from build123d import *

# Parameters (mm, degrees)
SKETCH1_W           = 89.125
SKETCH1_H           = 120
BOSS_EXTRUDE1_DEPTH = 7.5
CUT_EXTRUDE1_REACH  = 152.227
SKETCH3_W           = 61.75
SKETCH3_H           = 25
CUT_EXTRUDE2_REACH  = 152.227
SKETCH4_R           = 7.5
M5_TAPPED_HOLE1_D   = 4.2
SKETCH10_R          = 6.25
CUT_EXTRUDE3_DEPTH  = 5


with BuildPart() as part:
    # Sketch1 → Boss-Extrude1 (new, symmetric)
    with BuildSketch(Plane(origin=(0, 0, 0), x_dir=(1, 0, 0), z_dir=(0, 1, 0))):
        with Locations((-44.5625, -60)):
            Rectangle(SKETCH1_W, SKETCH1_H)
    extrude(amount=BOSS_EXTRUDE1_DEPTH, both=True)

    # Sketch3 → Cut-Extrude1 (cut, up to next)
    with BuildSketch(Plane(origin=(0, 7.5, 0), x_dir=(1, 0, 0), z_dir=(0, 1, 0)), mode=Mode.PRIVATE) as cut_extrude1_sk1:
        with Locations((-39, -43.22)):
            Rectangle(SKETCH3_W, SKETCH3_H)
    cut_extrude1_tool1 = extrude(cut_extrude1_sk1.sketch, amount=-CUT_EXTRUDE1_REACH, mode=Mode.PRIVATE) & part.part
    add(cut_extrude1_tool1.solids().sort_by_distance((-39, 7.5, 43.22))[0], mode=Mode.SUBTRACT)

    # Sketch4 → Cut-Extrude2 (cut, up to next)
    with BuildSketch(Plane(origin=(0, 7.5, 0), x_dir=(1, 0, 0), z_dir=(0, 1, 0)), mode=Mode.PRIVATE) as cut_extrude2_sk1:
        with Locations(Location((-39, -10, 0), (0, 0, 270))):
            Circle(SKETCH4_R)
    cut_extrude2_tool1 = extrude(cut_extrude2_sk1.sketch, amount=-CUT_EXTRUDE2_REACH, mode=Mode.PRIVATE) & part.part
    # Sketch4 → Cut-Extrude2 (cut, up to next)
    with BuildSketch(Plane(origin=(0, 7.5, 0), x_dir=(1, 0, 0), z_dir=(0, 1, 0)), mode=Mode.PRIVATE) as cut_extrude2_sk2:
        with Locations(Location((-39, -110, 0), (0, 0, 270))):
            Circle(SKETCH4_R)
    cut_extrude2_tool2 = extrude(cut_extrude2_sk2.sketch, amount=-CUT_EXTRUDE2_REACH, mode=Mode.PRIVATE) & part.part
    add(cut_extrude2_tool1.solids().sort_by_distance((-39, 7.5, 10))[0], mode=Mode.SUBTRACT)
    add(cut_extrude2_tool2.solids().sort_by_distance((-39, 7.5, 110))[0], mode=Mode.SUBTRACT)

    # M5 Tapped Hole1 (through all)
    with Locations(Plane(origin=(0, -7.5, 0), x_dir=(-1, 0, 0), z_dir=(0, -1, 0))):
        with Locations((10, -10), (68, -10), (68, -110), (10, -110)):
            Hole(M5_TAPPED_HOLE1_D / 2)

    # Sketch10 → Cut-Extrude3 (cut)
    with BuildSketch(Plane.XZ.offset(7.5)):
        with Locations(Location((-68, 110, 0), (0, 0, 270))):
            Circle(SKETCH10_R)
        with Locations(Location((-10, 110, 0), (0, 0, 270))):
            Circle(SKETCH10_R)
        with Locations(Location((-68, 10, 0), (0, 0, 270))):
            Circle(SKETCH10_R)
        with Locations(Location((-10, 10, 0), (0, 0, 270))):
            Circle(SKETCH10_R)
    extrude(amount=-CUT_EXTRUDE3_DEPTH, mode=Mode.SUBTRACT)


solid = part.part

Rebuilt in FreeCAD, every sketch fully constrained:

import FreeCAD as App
import Part
import Sketcher

V = App.Vector

doc = App.newDocument("Part")
body = doc.addObject("PartDesign::Body", "Body")

# Sketch on XZ plane
sketch1 = body.newObject("Sketcher::SketchObject", "Sketch")
sketch1.AttachmentSupport = (doc.getObject("XZ_Plane"), [""])
sketch1.MapMode = "FlatFace"
sketch1.addGeometry(Part.LineSegment(V(-89.125, 0, 0), V(-89.125, 120, 0)), False)
sketch1.addGeometry(Part.LineSegment(V(-89.125, 120, 0), V(0, 120, 0)), False)
sketch1.addGeometry(Part.LineSegment(V(0, 120, 0), V(0, 0, 0)), False)
sketch1.addGeometry(Part.LineSegment(V(0, 0, 0), V(-89.125, 0, 0)), False)
sketch1.addConstraint(Sketcher.Constraint("Coincident", 0, 2, 1, 1))
sketch1.addConstraint(Sketcher.Constraint("Coincident", 1, 2, 2, 1))
sketch1.addConstraint(Sketcher.Constraint("Coincident", 2, 2, 3, 1))
sketch1.addConstraint(Sketcher.Constraint("Coincident", 3, 2, 0, 1))
sketch1.addConstraint(Sketcher.Constraint("Vertical", 0))
sketch1.addConstraint(Sketcher.Constraint("Horizontal", 1))
sketch1.addConstraint(Sketcher.Constraint("Vertical", 2))
sketch1.addConstraint(Sketcher.Constraint("Horizontal", 3))
sketch1.addConstraint(Sketcher.Constraint("Coincident", 2, 2, -1, 1))
sketch1.addConstraint(Sketcher.Constraint("DistanceY", 0, 1, 0, 2, 120.0))
sketch1.addConstraint(Sketcher.Constraint("DistanceX", 1, 1, 1, 2, 89.125))
pad1 = body.newObject("PartDesign::Pad", "Pad")
pad1.Profile = sketch1
pad1.Length = 15
pad1.Midplane = True

# Sketch on XZ plane
sketch2 = body.newObject("Sketcher::SketchObject", "Sketch001")
sketch2.AttachmentSupport = (doc.getObject("XZ_Plane"), [""])
sketch2.MapMode = "FlatFace"
sketch2.AttachmentOffset = App.Placement(V(0, 0, -7.5), App.Rotation())
sketch2.addGeometry(Part.LineSegment(V(-69.875, 30.72, 0), V(-69.875, 55.72, 0)), False)
sketch2.addGeometry(Part.LineSegment(V(-69.875, 55.72, 0), V(-8.125, 55.72, 0)), False)
sketch2.addGeometry(Part.LineSegment(V(-8.125, 55.72, 0), V(-8.125, 30.72, 0)), False)
sketch2.addGeometry(Part.LineSegment(V(-8.125, 30.72, 0), V(-69.875, 30.72, 0)), False)
sketch2.addConstraint(Sketcher.Constraint("Coincident", 0, 2, 1, 1))
sketch2.addConstraint(Sketcher.Constraint("Coincident", 1, 2, 2, 1))
sketch2.addConstraint(Sketcher.Constraint("Coincident", 2, 2, 3, 1))
sketch2.addConstraint(Sketcher.Constraint("Coincident", 3, 2, 0, 1))
sketch2.addConstraint(Sketcher.Constraint("Vertical", 0))
sketch2.addConstraint(Sketcher.Constraint("Horizontal", 1))
sketch2.addConstraint(Sketcher.Constraint("Vertical", 2))
sketch2.addConstraint(Sketcher.Constraint("Horizontal", 3))
sketch2.addConstraint(Sketcher.Constraint("DistanceY", 0, 1, 0, 2, 25.0))
sketch2.addConstraint(Sketcher.Constraint("DistanceX", 1, 1, 1, 2, 61.75))
sketch2.addConstraint(Sketcher.Constraint("DistanceY", -1, 1, 0, 2, 55.72))
sketch2.addConstraint(Sketcher.Constraint("DistanceX", 0, 2, -1, 1, 69.875))
pocket1 = body.newObject("PartDesign::Pocket", "Pocket")
pocket1.Profile = sketch2
pocket1.Type = "UpToFirst"
pocket1.Reversed = True

# Sketch on XZ plane
sketch3 = body.newObject("Sketcher::SketchObject", "Sketch002")
sketch3.AttachmentSupport = (doc.getObject("XZ_Plane"), [""])
sketch3.MapMode = "FlatFace"
sketch3.AttachmentOffset = App.Placement(V(0, 0, -7.5), App.Rotation())
sketch3.addGeometry(Part.Circle(V(-39, 10, 0), V(0, 0, 1), 7.5), False)
sketch3.addConstraint(Sketcher.Constraint("Diameter", 0, 15.0))
sketch3.addConstraint(Sketcher.Constraint("DistanceX", 0, 3, -1, 1, 39.0))
sketch3.addConstraint(Sketcher.Constraint("DistanceY", -1, 1, 0, 3, 10.0))
pocket2 = body.newObject("PartDesign::Pocket", "Pocket001")
pocket2.Profile = sketch3
pocket2.Type = "UpToFirst"
pocket2.Reversed = True

# Sketch on XZ plane
sketch4 = body.newObject("Sketcher::SketchObject", "Sketch003")
sketch4.AttachmentSupport = (doc.getObject("XZ_Plane"), [""])
sketch4.MapMode = "FlatFace"
sketch4.AttachmentOffset = App.Placement(V(0, 0, -7.5), App.Rotation())
sketch4.addGeometry(Part.Circle(V(-39, 110, 0), V(0, 0, 1), 7.5), False)
sketch4.addConstraint(Sketcher.Constraint("Diameter", 0, 15.0))
sketch4.addConstraint(Sketcher.Constraint("DistanceX", 0, 3, -1, 1, 39.0))
sketch4.addConstraint(Sketcher.Constraint("DistanceY", -1, 1, 0, 3, 110.0))
pocket3 = body.newObject("PartDesign::Pocket", "Pocket002")
pocket3.Profile = sketch4
pocket3.Type = "UpToFirst"
pocket3.Reversed = True

# Sketch on XZ plane
sketch5 = body.newObject("Sketcher::SketchObject", "Sketch004")
sketch5.AttachmentSupport = (doc.getObject("XZ_Plane"), [""])
sketch5.MapMode = "FlatFace"
sketch5.AttachmentOffset = App.Placement(V(0, 0, 7.5), App.Rotation())
sketch5.addGeometry(Part.Circle(V(-10, 10, 0), V(0, 0, 1), 2.1), False)
sketch5.addGeometry(Part.Circle(V(-68, 10, 0), V(0, 0, 1), 2.1), False)
sketch5.addGeometry(Part.Circle(V(-68, 110, 0), V(0, 0, 1), 2.1), False)
sketch5.addGeometry(Part.Circle(V(-10, 110, 0), V(0, 0, 1), 2.1), False)
sketch5.addConstraint(Sketcher.Constraint("Equal", 0, 1))
sketch5.addConstraint(Sketcher.Constraint("Equal", 1, 2))
sketch5.addConstraint(Sketcher.Constraint("Equal", 2, 3))
sketch5.addConstraint(Sketcher.Constraint("Horizontal", 0, 3, 1, 3))
sketch5.addConstraint(Sketcher.Constraint("Horizontal", 2, 3, 3, 3))
sketch5.addConstraint(Sketcher.Constraint("Vertical", 1, 3, 2, 3))
sketch5.addConstraint(Sketcher.Constraint("Vertical", 0, 3, 3, 3))
sketch5.addConstraint(Sketcher.Constraint("Diameter", 0, 4.2))
sketch5.addConstraint(Sketcher.Constraint("DistanceX", 0, 3, -1, 1, 10.0))
sketch5.addConstraint(Sketcher.Constraint("DistanceY", -1, 1, 0, 3, 10.0))
sketch5.addConstraint(Sketcher.Constraint("DistanceX", 1, 3, -1, 1, 68.0))
sketch5.addConstraint(Sketcher.Constraint("DistanceY", -1, 1, 2, 3, 110.0))
doc.recompute()
hole = body.newObject("PartDesign::Hole", "Hole")
hole.Profile = sketch5
hole.ThreadType = "None"
hole.Diameter = 4.2
hole.DepthType = "ThroughAll"

# Sketch on XZ plane
sketch6 = body.newObject("Sketcher::SketchObject", "Sketch005")
sketch6.AttachmentSupport = (doc.getObject("XZ_Plane"), [""])
sketch6.MapMode = "FlatFace"
sketch6.AttachmentOffset = App.Placement(V(0, 0, 7.5), App.Rotation())
sketch6.addGeometry(Part.Circle(V(-68, 110, 0), V(0, 0, 1), 6.25), False)
sketch6.addGeometry(Part.Circle(V(-10, 110, 0), V(0, 0, 1), 6.25), False)
sketch6.addGeometry(Part.Circle(V(-68, 10, 0), V(0, 0, 1), 6.25), False)
sketch6.addGeometry(Part.Circle(V(-10, 10, 0), V(0, 0, 1), 6.25), False)
sketch6.addConstraint(Sketcher.Constraint("Equal", 0, 1))
sketch6.addConstraint(Sketcher.Constraint("Equal", 1, 2))
sketch6.addConstraint(Sketcher.Constraint("Equal", 2, 3))
sketch6.addConstraint(Sketcher.Constraint("Horizontal", 0, 3, 1, 3))
sketch6.addConstraint(Sketcher.Constraint("Horizontal", 2, 3, 3, 3))
sketch6.addConstraint(Sketcher.Constraint("Vertical", 0, 3, 2, 3))
sketch6.addConstraint(Sketcher.Constraint("Vertical", 1, 3, 3, 3))
sketch6.addConstraint(Sketcher.Constraint("Diameter", 0, 12.5))
sketch6.addConstraint(Sketcher.Constraint("DistanceX", 0, 3, -1, 1, 68.0))
sketch6.addConstraint(Sketcher.Constraint("DistanceY", -1, 1, 0, 3, 110.0))
sketch6.addConstraint(Sketcher.Constraint("DistanceX", 1, 3, -1, 1, 10.0))
sketch6.addConstraint(Sketcher.Constraint("DistanceY", -1, 1, 2, 3, 10.0))
pocket4 = body.newObject("PartDesign::Pocket", "Pocket003")
pocket4.Profile = sketch6
pocket4.Length = 5

doc.recompute()
